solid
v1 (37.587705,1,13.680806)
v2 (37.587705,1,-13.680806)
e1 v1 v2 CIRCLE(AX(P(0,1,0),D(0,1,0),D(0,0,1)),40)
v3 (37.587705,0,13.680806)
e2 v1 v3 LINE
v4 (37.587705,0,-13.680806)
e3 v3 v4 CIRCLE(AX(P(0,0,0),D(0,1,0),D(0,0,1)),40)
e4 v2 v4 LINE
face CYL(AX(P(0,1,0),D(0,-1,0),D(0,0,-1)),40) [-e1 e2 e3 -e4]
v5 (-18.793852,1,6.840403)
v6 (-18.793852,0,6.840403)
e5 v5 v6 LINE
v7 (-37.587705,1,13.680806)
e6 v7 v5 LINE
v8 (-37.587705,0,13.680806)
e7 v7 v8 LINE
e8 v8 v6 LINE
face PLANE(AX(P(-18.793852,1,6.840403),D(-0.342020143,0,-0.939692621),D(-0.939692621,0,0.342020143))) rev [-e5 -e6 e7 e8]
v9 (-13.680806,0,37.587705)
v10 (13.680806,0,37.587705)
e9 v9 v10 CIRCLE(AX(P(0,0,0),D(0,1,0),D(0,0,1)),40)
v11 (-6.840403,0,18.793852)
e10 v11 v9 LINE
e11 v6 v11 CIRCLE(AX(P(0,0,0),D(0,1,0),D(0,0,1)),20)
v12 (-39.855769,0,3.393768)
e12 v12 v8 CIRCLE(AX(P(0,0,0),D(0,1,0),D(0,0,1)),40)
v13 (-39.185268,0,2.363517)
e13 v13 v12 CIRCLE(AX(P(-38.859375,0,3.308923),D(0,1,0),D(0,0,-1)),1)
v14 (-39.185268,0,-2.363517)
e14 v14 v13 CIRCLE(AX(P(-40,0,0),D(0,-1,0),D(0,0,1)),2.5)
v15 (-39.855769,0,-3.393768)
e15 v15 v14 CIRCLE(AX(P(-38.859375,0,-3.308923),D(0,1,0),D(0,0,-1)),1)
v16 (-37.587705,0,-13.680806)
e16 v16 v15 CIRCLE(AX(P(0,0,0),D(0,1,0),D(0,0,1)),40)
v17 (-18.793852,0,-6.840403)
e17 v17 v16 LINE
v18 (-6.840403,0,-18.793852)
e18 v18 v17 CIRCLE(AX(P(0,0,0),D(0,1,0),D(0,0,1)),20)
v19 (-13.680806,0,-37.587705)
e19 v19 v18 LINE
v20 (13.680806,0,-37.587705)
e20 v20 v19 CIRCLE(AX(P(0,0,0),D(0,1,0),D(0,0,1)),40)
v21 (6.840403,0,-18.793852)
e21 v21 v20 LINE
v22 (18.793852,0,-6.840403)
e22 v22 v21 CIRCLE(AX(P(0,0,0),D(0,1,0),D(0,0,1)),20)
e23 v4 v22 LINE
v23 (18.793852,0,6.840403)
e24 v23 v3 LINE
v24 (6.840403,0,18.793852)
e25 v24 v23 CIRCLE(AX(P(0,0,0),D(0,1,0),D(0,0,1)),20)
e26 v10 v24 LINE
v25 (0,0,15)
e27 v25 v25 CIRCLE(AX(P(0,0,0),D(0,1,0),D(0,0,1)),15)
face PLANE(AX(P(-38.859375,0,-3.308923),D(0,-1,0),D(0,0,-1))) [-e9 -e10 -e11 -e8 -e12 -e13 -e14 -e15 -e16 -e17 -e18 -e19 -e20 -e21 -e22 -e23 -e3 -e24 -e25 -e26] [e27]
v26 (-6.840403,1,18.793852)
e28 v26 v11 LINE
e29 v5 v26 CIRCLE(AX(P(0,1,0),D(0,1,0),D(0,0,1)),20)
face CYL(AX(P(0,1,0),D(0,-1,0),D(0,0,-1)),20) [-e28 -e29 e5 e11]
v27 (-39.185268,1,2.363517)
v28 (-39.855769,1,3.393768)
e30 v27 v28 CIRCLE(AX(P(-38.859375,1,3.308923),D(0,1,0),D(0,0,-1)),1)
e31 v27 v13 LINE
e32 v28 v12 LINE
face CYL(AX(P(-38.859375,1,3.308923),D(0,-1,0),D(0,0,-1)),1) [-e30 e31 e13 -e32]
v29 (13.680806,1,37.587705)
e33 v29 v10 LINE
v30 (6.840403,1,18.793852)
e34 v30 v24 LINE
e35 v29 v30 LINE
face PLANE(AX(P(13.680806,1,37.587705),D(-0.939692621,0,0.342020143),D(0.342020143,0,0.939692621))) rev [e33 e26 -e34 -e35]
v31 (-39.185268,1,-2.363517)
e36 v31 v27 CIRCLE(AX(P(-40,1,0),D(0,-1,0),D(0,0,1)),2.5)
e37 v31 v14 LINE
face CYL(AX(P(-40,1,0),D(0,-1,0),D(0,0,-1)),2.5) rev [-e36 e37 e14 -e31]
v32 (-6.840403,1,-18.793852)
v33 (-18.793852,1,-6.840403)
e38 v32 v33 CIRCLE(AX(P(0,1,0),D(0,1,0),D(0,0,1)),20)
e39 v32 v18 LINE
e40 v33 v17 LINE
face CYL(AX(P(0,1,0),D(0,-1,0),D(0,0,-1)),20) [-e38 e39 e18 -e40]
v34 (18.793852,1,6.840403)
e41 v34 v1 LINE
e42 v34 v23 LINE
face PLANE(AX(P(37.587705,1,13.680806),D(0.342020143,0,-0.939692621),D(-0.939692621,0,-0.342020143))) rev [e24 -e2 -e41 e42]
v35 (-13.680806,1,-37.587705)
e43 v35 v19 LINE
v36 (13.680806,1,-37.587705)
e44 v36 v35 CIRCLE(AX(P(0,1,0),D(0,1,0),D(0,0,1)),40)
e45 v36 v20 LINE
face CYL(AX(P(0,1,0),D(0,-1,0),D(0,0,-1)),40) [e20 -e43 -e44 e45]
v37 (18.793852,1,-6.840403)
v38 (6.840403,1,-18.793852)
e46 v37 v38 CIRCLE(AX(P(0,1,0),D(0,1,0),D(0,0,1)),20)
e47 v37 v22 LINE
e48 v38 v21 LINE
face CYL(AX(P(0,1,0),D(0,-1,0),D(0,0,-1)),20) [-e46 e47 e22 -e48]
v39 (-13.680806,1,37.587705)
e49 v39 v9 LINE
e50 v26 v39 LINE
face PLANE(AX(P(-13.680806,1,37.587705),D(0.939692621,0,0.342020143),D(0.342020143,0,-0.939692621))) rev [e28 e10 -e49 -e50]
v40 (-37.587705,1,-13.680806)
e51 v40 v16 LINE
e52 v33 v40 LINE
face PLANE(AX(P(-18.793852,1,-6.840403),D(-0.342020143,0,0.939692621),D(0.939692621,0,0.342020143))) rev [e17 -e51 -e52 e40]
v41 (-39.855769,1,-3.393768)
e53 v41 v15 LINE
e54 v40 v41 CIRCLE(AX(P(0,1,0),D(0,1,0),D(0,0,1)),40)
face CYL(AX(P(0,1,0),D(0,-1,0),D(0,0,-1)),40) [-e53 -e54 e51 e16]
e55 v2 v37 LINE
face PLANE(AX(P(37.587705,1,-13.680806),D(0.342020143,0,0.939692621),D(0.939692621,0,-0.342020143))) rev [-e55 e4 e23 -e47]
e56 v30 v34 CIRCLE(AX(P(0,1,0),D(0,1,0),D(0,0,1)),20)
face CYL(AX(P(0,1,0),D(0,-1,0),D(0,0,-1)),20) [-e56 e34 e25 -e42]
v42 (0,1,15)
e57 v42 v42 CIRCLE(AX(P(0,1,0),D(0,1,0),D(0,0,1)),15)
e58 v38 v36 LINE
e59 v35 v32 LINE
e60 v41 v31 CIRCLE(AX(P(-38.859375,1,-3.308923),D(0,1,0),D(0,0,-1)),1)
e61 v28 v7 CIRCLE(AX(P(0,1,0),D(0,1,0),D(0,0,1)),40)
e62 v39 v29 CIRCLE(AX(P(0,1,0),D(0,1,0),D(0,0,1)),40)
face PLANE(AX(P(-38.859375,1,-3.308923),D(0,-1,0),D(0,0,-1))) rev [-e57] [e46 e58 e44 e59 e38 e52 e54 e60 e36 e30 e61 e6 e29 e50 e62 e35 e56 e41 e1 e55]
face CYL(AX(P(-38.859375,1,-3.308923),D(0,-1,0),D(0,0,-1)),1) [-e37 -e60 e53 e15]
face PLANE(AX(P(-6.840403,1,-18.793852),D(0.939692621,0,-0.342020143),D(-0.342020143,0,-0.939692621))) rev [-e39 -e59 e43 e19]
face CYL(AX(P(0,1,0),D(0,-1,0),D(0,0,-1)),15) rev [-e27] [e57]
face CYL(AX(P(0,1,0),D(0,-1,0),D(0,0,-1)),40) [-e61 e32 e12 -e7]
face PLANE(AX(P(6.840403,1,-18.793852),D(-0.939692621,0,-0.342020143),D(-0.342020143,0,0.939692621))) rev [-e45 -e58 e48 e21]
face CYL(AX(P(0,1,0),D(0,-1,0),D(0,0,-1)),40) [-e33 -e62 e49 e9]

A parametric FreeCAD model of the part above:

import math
import FreeCAD as App
import Part
import Sketcher
Q = App.Units.Quantity

doc = App.newDocument("Part")
body = doc.addObject("PartDesign::Body", "Body")

sketch1 = body.newObject("Sketcher::SketchObject", "Sketch")
sketch1.AttachmentSupport = (doc.getObject("XZ_Plane"), [""])
sketch1.MapMode = "FlatFace"
sketch1.addGeometry([
    Part.LineSegment(App.Vector(18.793852, 6.840403, 0), App.Vector(37.587705, 13.680806, 0)),
    Part.ArcOfCircle(Part.Circle(App.Vector(0, 0, 0), App.Vector(0, 0, 1), 40), math.radians(-20), math.radians(20)),
    Part.LineSegment(App.Vector(37.587705, -13.680806, 0), App.Vector(18.793852, -6.840403, 0)),
    Part.ArcOfCircle(Part.Circle(App.Vector(0, 0, 0), App.Vector(0, 0, 1), 20), math.radians(-70), math.radians(-20)),
    Part.LineSegment(App.Vector(6.840403, -18.793852, 0), App.Vector(13.680806, -37.587705, 0)),
    Part.ArcOfCircle(Part.Circle(App.Vector(0, 0, 0), App.Vector(0, 0, 1), 40), math.radians(-110), math.radians(-70)),
    Part.LineSegment(App.Vector(-13.680806, -37.587705, 0), App.Vector(-6.840403, -18.793852, 0)),
    Part.ArcOfCircle(Part.Circle(App.Vector(0, 0, 0), App.Vector(0, 0, 1), 20), math.radians(-160), math.radians(-110)),
    Part.LineSegment(App.Vector(-18.793852, -6.840403, 0), App.Vector(-37.587705, -13.680806, 0)),
    Part.ArcOfCircle(Part.Circle(App.Vector(0, 0, 0), App.Vector(0, 0, 1), 40), math.radians(-175.132935), math.radians(-160)),
    Part.ArcOfCircle(Part.Circle(App.Vector(-38.859375, -3.308923, 0), App.Vector(0, 0, 1), 1), math.radians(109.019677), math.radians(184.867065)),
    Part.ArcOfCircle(Part.Circle(App.Vector(-40, 0, 0), App.Vector(0, 0, 1), 2.5), math.radians(-70.980323), math.radians(70.980323)),
    Part.ArcOfCircle(Part.Circle(App.Vector(-38.859375, 3.308923, 0), App.Vector(0, 0, 1), 1), math.radians(175.132935), math.radians(250.980323)),
    Part.ArcOfCircle(Part.Circle(App.Vector(0, 0, 0), App.Vector(0, 0, 1), 40), math.radians(160), math.radians(175.132935)),
    Part.LineSegment(App.Vector(-37.587705, 13.680806, 0), App.Vector(-18.793852, 6.840403, 0)),
    Part.ArcOfCircle(Part.Circle(App.Vector(0, 0, 0), App.Vector(0, 0, 1), 20), math.radians(110), math.radians(160)),
    Part.LineSegment(App.Vector(-6.840403, 18.793852, 0), App.Vector(-13.680806, 37.587705, 0)),
    Part.ArcOfCircle(Part.Circle(App.Vector(0, 0, 0), App.Vector(0, 0, 1), 40), math.radians(70), math.radians(110)),
    Part.LineSegment(App.Vector(13.680806, 37.587705, 0), App.Vector(6.840403, 18.793852, 0)),
    Part.ArcOfCircle(Part.Circle(App.Vector(0, 0, 0), App.Vector(0, 0, 1), 20), math.radians(20), math.radians(70)),
    Part.Circle(App.Vector(0, 0, 0), App.Vector(0, 0, 1), 15),
], False)
sketch1.addConstraint([
    Sketcher.Constraint("Coincident", 0, 2, 1, 2),
    Sketcher.Constraint("Coincident", 1, 1, 2, 1),
    Sketcher.Constraint("Coincident", 2, 2, 3, 2),
    Sketcher.Constraint("Coincident", 3, 1, 4, 1),
    Sketcher.Constraint("Coincident", 4, 2, 5, 2),
    Sketcher.Constraint("Coincident", 5, 1, 6, 1),
    Sketcher.Constraint("Coincident", 6, 2, 7, 2),
    Sketcher.Constraint("Coincident", 7, 1, 8, 1),
    Sketcher.Constraint("Coincident", 8, 2, 9, 2),
    Sketcher.Constraint("Tangent", 9, 1, 10, 2),
    Sketcher.Constraint("Tangent", 10, 1, 11, 1),
    Sketcher.Constraint("Tangent", 11, 2, 12, 2),
    Sketcher.Constraint("Tangent", 12, 1, 13, 2),
    Sketcher.Constraint("Coincident", 13, 1, 14, 1),
    Sketcher.Constraint("Coincident", 14, 2, 15, 2),
    Sketcher.Constraint("Coincident", 15, 1, 16, 1),
    Sketcher.Constraint("Coincident", 16, 2, 17, 2),
    Sketcher.Constraint("Coincident", 17, 1, 18, 1),
    Sketcher.Constraint("Coincident", 18, 2, 19, 2),
    Sketcher.Constraint("Coincident", 19, 1, 0, 1),
    Sketcher.Constraint("Coincident", 1, 3, -1, 1),
    Sketcher.Constraint("Coincident", 3, 3, -1, 1),
    Sketcher.Constraint("Coincident", 5, 3, -1, 1),
    Sketcher.Constraint("Coincident", 7, 3, -1, 1),
    Sketcher.Constraint("Coincident", 9, 3, -1, 1),
    Sketcher.Constraint("Coincident", 13, 3, -1, 1),
    Sketcher.Constraint("Coincident", 15, 3, -1, 1),
    Sketcher.Constraint("Coincident", 17, 3, -1, 1),
    Sketcher.Constraint("Coincident", 19, 3, -1, 1),
    Sketcher.Constraint("Coincident", 20, 3, -1, 1),
    Sketcher.Constraint("Equal", 1, 5),
    Sketcher.Constraint("Equal", 3, 7),
    Sketcher.Constraint("Equal", 5, 9),
    Sketcher.Constraint("Equal", 10, 12),
    Sketcher.Constraint("Equal", 9, 13),
    Sketcher.Constraint("Equal", 7, 15),
    Sketcher.Constraint("Equal", 13, 17),
    Sketcher.Constraint("Equal", 15, 19),
    Sketcher.Constraint("PointOnObject", 11, 3, -1),
    Sketcher.Constraint("Perpendicular", 0, 4),
    Sketcher.Constraint("Perpendicular", 2, 6),
    Sketcher.Constraint("Perpendicular", 4, 8),
    Sketcher.Constraint("Perpendicular", 6, 14),
    Sketcher.Constraint("Perpendicular", 8, 16),
    Sketcher.Constraint("Perpendicular", 14, 18),
    Sketcher.Constraint("Horizontal", 4, 2, 5, 1),
    Sketcher.Constraint("Horizontal", 3, 1, 6, 2),
    Sketcher.Constraint("Horizontal", 2, 2, 7, 1),
    Sketcher.Constraint("Horizontal", 0, 2, 13, 1),
    Sketcher.Constraint("Horizontal", 16, 2, 17, 1),
    Sketcher.Constraint("Vertical", 0, 2, 1, 1),
    Sketcher.Constraint("Vertical", 6, 2, 15, 1),
    Sketcher.Constraint("Diameter", 20, 30.0),
    Sketcher.Constraint("Radius", 1, 40.0),
    Sketcher.Constraint("Radius", 3, 20.0),
    Sketcher.Constraint("Radius", 10, 1.0),
    Sketcher.Constraint("Radius", 11, 2.5),
    Sketcher.Constraint("Angle", 0, Q("20 deg")),
    Sketcher.Constraint("DistanceX", 11, 3, -1, 1, 40.0),
    Sketcher.Constraint("DistanceY", 4, 2, 2, 2, 30.747302),
    Sketcher.Constraint("DistanceX", 4, 2, 1, 1, 23.906899),
])
pad1 = body.newObject("PartDesign::Pad", "Pad")
pad1.Profile = sketch1
pad1.Length = 1
pad1.Reversed = True

doc.recompute()
